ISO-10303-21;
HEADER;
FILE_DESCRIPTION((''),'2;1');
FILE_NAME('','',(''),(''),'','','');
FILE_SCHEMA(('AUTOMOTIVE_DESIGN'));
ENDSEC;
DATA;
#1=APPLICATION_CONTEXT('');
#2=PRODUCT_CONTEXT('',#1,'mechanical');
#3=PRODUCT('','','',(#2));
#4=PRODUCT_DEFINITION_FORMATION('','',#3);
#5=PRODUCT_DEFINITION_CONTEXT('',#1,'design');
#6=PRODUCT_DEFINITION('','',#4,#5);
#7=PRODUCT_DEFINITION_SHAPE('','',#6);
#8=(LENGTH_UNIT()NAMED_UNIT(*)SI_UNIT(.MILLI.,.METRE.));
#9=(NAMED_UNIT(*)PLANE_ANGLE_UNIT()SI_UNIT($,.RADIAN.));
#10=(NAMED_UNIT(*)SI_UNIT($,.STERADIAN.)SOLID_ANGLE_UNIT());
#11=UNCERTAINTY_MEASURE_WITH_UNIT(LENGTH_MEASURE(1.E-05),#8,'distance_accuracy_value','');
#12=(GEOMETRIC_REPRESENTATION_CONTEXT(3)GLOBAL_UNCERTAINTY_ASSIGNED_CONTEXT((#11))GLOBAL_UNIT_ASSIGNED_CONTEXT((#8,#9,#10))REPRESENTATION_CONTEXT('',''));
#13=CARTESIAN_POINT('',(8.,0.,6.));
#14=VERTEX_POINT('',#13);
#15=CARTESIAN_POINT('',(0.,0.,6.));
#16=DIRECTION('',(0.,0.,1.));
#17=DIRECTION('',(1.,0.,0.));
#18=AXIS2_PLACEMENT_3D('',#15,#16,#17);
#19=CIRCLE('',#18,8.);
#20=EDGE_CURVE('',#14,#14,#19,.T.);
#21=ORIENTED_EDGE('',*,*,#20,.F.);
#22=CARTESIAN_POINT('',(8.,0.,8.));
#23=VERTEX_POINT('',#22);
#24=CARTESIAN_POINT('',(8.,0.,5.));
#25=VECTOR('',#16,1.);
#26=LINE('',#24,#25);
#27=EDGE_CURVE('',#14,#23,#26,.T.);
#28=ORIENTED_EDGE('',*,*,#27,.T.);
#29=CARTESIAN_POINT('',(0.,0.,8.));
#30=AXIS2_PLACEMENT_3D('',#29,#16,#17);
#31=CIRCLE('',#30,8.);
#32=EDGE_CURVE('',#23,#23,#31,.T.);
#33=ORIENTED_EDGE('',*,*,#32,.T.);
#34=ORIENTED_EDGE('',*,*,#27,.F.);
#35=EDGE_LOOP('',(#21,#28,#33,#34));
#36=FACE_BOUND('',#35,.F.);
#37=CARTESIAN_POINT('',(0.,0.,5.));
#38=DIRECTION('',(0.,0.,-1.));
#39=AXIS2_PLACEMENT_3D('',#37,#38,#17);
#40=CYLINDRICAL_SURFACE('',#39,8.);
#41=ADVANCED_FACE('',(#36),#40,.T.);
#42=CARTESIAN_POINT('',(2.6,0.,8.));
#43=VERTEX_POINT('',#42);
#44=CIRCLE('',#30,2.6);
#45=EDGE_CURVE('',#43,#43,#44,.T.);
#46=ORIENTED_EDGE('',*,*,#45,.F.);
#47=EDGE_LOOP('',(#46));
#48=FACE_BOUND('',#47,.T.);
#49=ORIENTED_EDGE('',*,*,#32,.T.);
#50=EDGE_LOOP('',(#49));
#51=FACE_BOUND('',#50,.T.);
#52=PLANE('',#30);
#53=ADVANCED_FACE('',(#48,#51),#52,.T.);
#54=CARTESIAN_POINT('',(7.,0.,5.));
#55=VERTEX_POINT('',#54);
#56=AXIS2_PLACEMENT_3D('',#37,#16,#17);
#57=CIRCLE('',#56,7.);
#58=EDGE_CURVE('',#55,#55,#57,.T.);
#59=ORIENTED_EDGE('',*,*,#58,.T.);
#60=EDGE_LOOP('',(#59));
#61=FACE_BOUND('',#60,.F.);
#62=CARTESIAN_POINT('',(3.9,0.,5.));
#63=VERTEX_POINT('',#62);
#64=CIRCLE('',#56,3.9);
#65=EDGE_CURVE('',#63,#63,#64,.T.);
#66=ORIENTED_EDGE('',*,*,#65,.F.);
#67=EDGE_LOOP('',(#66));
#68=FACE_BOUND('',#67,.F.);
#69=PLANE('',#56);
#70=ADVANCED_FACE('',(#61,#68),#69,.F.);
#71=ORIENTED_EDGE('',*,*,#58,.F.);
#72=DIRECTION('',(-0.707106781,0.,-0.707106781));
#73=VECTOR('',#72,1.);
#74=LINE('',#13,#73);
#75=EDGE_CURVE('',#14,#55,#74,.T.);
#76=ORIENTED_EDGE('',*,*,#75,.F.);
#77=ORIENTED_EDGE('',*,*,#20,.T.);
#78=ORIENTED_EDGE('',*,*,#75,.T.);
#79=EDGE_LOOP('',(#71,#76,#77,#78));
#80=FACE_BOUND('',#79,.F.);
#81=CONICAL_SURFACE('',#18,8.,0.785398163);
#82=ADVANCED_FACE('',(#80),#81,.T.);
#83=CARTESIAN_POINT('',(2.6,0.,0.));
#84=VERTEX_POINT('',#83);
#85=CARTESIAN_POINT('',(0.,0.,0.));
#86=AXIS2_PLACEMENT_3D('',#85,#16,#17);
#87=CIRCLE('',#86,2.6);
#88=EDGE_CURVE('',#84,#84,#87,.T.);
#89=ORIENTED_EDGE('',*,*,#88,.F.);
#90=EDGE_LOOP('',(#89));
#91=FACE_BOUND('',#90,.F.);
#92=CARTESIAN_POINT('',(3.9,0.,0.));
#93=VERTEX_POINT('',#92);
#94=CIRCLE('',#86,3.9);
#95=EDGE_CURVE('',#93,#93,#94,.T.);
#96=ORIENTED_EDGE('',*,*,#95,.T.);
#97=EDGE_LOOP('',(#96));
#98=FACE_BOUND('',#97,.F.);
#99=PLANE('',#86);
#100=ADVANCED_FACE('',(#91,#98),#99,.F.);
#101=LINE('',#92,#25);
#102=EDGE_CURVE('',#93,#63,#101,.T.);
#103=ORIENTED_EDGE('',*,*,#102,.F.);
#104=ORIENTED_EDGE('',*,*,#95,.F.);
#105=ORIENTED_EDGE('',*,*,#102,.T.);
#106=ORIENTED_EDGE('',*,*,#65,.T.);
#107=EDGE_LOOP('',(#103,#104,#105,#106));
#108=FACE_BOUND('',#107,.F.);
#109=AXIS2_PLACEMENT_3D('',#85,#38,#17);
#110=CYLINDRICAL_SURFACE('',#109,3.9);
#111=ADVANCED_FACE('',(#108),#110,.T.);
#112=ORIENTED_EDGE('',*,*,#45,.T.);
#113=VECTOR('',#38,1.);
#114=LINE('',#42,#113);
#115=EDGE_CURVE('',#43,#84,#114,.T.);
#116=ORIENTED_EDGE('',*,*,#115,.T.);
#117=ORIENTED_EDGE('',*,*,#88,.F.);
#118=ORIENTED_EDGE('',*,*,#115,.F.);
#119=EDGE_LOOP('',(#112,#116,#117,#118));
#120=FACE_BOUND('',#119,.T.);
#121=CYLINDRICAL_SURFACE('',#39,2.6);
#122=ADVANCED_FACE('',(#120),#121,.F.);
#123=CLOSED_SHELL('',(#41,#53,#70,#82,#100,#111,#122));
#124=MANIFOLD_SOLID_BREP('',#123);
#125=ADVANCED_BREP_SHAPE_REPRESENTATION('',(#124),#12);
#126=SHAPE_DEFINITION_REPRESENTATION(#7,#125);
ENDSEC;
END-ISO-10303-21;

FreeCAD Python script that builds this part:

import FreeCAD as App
import Part
import Sketcher
Q = App.Units.Quantity


def edges_at(feature, points):
    """Names of the edges that pass closest to the given points."""
    edges = feature.Shape.Edges
    near = lambda p: min(range(len(edges)), key=lambda i: edges[i].distToShape(Part.Vertex(*p))[0])
    return sorted({f"Edge{near(p) + 1}" for p in points})

doc = App.newDocument("Part")
params = doc.addObject("Spreadsheet::Sheet", "Params")
for row, (alias, value) in enumerate([
    ("sketch1_diameter", "7.8 mm"),
    ("sketch1_diameter2", "5.2 mm"),
    ("pad1_length", "5 mm"),
    ("sketch2_diameter", "16 mm"),
    ("sketch2_diameter2", "5.2 mm"),
    ("pad2_length", "3 mm"),
    ("chamfer_size", "1 mm"),
], start=1):
    params.set(f"A{row}", alias)
    params.set(f"B{row}", "=" + value)
    params.setAlias(f"B{row}", alias)

body = doc.addObject("PartDesign::Body", "Body")

sketch1 = doc.addObject("Sketcher::SketchObject", "Sketch")
body.addObject(sketch1)
sketch1.AttachmentSupport = (doc.XY_Plane, [""])
sketch1.MapMode = "FlatFace"
sketch1.addGeometry(Part.Circle(App.Vector(0, 0, 0), App.Vector(0, 0, 1), 3.9), False)
sketch1.addGeometry(Part.Circle(App.Vector(0, 0, 0), App.Vector(0, 0, 1), 2.6), False)
sketch1.addConstraint(Sketcher.Constraint("Coincident", 0, 3, -1, 1))
sketch1.addConstraint(Sketcher.Constraint("Coincident", 1, 3, -1, 1))
sketch1.addConstraint(Sketcher.Constraint("Diameter", 0, Q("7.8 mm")))
sketch1.addConstraint(Sketcher.Constraint("Diameter", 1, Q("5.2 mm")))
sketch1.setExpression("Constraints[2]", "Params.sketch1_diameter")
sketch1.setExpression("Constraints[3]", "Params.sketch1_diameter2")
pad1 = doc.addObject("PartDesign::Pad", "Pad")
body.addObject(pad1)
pad1.Profile = sketch1
pad1.setExpression("Length", "Params.pad1_length")

sketch2 = doc.addObject("Sketcher::SketchObject", "Sketch001")
body.addObject(sketch2)
sketch2.AttachmentSupport = (doc.XY_Plane, [""])
sketch2.MapMode = "FlatFace"
sketch2.AttachmentOffset = App.Placement(App.Vector(0, 0, 5), App.Rotation())
sketch2.addGeometry(Part.Circle(App.Vector(0, 0, 0), App.Vector(0, 0, 1), 8), False)
sketch2.addGeometry(Part.Circle(App.Vector(0, 0, 0), App.Vector(0, 0, 1), 2.6), False)
sketch2.addConstraint(Sketcher.Constraint("Coincident", 0, 3, -1, 1))
sketch2.addConstraint(Sketcher.Constraint("Coincident", 1, 3, -1, 1))
sketch2.addConstraint(Sketcher.Constraint("Diameter", 0, Q("16 mm")))
sketch2.addConstraint(Sketcher.Constraint("Diameter", 1, Q("5.2 mm")))
sketch2.setExpression("Constraints[2]", "Params.sketch2_diameter")
sketch2.setExpression("Constraints[3]", "Params.sketch2_diameter2")
pad2 = doc.addObject("PartDesign::Pad", "Pad001")
body.addObject(pad2)
pad2.Profile = sketch2
pad2.setExpression("Length", "Params.pad2_length")
doc.recompute()

chamfer = doc.addObject("PartDesign::Chamfer", "Chamfer")
body.addObject(chamfer)
chamfer.Base = (pad2, edges_at(pad2, [(-8, 0, 5)]))
chamfer.setExpression("Size", "Params.chamfer_size")

doc.recompute()
